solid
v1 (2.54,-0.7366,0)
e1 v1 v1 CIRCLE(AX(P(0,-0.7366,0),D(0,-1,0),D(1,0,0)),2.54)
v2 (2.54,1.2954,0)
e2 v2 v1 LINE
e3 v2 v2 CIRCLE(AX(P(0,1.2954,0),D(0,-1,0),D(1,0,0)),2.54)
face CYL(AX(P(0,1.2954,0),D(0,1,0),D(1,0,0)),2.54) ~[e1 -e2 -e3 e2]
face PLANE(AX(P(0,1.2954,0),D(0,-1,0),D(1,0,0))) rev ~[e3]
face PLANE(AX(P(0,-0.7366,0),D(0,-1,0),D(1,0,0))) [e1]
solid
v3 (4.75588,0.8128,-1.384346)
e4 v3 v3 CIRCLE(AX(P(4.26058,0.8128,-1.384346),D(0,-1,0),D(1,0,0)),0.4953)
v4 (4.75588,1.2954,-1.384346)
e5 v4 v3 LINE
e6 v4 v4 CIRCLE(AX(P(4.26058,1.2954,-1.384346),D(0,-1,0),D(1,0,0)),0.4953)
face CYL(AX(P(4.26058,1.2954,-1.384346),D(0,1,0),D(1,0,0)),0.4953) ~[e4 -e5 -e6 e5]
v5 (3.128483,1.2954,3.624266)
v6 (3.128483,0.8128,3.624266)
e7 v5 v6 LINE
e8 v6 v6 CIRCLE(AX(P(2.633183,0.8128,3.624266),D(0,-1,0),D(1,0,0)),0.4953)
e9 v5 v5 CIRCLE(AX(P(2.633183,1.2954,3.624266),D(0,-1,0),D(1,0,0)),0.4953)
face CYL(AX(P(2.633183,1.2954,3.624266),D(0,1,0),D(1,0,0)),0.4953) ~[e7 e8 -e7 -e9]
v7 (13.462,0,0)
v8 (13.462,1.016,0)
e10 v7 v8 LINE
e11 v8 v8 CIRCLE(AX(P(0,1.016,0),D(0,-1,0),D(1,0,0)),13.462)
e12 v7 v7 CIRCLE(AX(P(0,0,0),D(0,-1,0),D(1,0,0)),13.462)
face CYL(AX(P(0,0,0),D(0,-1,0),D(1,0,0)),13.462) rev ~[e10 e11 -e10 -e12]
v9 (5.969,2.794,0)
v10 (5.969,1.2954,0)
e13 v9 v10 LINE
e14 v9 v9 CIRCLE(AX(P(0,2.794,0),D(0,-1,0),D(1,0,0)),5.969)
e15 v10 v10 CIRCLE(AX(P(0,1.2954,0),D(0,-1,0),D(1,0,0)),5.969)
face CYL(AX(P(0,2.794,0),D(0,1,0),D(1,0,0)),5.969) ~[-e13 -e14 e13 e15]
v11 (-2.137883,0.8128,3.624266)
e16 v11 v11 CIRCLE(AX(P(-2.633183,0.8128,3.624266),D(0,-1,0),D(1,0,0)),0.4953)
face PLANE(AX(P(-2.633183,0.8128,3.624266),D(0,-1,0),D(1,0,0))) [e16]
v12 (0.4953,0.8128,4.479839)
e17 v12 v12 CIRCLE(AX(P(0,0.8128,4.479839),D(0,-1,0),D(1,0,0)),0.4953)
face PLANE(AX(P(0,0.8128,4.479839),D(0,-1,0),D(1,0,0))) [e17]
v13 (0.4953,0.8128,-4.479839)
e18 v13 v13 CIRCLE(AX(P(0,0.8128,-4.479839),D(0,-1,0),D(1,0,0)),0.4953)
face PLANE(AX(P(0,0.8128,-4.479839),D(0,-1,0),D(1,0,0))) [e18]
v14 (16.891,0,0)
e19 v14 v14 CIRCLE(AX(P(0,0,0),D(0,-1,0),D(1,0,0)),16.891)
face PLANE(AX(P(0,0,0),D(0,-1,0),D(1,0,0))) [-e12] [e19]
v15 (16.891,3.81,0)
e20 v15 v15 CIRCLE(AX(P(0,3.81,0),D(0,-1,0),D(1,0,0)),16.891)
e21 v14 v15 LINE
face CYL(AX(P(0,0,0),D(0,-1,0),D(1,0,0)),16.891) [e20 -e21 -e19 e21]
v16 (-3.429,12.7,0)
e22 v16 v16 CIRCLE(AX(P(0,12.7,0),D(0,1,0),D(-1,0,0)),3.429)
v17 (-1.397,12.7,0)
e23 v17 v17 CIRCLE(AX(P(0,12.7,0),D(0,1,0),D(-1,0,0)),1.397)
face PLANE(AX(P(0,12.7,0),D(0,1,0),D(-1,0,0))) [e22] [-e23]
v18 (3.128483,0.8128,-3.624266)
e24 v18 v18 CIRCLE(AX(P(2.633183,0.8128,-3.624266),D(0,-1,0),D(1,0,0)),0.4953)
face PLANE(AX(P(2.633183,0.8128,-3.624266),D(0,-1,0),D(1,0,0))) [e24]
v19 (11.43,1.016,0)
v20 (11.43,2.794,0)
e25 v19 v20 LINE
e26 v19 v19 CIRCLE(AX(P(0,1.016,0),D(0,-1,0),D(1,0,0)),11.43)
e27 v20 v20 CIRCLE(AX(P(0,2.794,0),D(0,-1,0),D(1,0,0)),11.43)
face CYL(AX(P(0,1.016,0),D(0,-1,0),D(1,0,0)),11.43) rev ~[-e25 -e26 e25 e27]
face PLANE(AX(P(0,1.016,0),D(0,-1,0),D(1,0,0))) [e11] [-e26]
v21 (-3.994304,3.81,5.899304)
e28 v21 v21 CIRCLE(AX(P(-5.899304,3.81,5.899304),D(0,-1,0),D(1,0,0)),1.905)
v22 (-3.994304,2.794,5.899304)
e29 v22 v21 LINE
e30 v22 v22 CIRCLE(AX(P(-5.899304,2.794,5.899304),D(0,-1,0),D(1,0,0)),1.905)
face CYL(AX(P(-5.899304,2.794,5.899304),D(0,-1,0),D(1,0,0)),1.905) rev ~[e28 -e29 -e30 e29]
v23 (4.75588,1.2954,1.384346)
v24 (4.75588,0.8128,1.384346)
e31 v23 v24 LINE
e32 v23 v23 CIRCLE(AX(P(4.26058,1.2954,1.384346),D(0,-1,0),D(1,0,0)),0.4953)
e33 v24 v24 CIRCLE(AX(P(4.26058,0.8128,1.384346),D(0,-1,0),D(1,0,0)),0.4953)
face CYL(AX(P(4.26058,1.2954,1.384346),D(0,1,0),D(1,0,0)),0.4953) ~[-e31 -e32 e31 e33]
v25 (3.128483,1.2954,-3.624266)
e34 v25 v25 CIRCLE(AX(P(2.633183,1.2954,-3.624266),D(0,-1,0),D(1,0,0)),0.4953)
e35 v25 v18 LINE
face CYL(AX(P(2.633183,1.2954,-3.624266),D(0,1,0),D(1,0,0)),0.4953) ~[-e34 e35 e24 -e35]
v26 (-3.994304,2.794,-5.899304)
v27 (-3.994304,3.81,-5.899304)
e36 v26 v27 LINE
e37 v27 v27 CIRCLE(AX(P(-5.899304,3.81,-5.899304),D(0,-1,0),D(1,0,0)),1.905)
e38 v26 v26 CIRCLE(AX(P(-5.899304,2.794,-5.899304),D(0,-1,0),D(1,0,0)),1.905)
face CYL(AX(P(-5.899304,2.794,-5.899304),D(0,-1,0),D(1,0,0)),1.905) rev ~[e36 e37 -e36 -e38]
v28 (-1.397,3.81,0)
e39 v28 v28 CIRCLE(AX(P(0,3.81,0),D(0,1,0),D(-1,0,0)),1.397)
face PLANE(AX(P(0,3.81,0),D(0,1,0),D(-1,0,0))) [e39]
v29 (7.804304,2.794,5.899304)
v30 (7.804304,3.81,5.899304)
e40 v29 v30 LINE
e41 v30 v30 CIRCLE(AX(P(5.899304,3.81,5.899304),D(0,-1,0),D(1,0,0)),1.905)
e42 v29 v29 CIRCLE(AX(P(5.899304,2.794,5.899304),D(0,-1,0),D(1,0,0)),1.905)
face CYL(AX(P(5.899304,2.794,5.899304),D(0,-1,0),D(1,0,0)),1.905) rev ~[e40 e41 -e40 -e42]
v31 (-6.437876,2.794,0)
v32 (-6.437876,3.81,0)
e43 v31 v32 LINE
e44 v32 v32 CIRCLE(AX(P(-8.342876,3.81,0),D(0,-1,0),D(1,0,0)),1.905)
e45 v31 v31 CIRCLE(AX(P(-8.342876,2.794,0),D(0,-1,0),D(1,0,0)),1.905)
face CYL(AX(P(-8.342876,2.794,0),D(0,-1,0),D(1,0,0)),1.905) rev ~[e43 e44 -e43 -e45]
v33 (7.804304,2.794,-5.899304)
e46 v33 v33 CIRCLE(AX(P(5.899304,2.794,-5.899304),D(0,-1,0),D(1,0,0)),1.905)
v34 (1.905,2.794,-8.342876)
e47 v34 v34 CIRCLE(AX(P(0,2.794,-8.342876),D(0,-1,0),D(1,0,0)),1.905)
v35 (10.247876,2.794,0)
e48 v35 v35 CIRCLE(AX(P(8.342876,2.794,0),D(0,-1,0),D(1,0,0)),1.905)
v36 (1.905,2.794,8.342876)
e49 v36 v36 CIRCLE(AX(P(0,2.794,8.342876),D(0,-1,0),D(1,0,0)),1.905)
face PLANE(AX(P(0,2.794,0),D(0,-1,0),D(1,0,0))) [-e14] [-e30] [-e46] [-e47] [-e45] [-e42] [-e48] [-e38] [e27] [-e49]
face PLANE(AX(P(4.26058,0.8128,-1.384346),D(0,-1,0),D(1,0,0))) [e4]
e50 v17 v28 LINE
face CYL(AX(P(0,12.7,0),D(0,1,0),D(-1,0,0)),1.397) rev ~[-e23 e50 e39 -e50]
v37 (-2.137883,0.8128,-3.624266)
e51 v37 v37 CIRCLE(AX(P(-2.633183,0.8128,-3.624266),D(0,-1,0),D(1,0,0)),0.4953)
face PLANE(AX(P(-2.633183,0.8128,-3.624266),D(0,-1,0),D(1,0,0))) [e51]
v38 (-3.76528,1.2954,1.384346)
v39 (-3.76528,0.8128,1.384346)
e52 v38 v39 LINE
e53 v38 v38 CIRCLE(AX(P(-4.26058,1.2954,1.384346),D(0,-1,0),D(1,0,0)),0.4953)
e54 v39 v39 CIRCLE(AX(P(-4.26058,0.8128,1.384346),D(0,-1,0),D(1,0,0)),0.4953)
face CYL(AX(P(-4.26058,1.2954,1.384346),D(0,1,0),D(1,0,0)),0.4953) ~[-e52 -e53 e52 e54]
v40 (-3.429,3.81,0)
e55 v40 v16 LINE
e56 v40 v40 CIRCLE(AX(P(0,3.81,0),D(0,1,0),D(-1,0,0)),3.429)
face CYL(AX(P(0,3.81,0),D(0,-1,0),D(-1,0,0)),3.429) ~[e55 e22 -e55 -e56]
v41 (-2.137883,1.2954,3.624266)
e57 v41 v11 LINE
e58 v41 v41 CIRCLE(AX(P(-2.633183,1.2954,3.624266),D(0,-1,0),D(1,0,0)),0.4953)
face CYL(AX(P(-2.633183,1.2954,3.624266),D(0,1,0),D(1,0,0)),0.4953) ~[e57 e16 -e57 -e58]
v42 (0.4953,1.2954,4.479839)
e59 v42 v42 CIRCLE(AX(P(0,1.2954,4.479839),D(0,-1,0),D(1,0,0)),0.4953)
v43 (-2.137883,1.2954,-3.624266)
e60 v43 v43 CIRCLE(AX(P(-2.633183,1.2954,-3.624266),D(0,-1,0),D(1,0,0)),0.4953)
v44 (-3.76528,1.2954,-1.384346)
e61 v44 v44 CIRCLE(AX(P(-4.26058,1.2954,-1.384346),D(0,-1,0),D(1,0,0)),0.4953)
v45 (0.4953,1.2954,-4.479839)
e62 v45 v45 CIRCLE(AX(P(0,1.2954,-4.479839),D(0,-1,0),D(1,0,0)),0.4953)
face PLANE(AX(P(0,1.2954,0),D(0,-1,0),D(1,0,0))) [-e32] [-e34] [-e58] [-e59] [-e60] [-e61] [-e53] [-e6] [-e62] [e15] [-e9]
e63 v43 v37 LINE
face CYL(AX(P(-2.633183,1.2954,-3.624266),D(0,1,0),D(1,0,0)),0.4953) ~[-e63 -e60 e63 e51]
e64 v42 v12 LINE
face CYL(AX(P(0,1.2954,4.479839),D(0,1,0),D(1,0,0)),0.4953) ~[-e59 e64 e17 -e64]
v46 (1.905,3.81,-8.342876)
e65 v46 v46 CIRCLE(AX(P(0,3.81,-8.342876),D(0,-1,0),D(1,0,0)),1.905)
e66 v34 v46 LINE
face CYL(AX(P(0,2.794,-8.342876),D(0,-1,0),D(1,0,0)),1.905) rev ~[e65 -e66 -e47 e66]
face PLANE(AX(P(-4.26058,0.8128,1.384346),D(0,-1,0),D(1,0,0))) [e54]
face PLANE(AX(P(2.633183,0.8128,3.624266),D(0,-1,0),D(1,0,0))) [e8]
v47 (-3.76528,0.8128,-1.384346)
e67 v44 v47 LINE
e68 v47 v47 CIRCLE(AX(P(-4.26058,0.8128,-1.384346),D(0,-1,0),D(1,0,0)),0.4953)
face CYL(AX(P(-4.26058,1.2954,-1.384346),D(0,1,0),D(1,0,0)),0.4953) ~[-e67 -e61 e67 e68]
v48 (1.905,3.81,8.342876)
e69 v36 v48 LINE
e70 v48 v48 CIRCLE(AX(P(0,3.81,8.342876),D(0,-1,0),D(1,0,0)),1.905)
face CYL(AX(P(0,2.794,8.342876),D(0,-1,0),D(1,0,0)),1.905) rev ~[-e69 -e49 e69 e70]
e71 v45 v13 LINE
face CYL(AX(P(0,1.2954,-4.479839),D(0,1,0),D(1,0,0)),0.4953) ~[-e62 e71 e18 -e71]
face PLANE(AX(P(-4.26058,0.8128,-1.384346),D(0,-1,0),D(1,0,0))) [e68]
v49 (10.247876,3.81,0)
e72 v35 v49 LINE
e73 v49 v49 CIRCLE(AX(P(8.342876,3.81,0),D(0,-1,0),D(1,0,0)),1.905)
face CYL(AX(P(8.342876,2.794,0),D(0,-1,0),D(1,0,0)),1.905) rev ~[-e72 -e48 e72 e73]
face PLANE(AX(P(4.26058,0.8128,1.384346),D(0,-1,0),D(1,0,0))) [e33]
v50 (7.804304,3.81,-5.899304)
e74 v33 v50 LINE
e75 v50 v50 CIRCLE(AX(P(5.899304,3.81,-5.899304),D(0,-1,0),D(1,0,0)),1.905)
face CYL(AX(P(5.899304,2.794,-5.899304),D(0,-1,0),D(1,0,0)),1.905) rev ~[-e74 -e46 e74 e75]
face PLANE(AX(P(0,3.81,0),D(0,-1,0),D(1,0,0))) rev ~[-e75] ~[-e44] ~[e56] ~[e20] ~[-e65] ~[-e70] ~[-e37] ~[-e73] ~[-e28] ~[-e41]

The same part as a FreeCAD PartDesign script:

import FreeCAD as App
import Part
import Sketcher

V = App.Vector
Q = App.Units.Quantity

doc = App.newDocument("Part")
params = doc.addObject("Spreadsheet::Sheet", "Params")
for row, (alias, value) in enumerate([
    ("sketch1_diameter", "1.33 in"),
    ("pad1_length", "0.15 in"),
    ("sketch2_diameter", "1.06 in"),
    ("pocket1_length", "0.04 in"),
    ("sketch3_diameter", "0.9 in"),
    ("pocket2_length", "0.07 in"),
    ("sketch4_diameter", "0.15 in"),
    ("pocket3_length", "0.078 in"),
    ("sketch5_diameter", "0.47 in"),
    ("pad2_length", "0.059 in"),
    ("sketch6_diameter", "0.039 in"),
    ("pad3_length", "0.019 in"),
    ("sketch7_diameter", "0.27 in"),
    ("pad4_length", "0.35 in"),
    ("sketch8_diameter", "0.11 in"),
    ("pocket4_length", "0.35 in"),
    ("sketch9_diameter", "0.2 in"),
    ("pad5_length", "0.08 in"),
], start=1):
    params.set(f"A{row}", alias)
    params.set(f"B{row}", "=" + value)
    params.setAlias(f"B{row}", alias)

body = doc.addObject("PartDesign::Body", "Body")

# Sketch on XZ plane
sketch1 = doc.addObject("Sketcher::SketchObject", "Sketch")
body.addObject(sketch1)
sketch1.AttachmentSupport = (doc.XZ_Plane, [""])
sketch1.MapMode = "FlatFace"
sketch1.addGeometry(Part.Circle(V(0, 0, 0), V(0, 0, 1), 17), False)
sketch1.addConstraint(Sketcher.Constraint("Coincident", 0, 3, -1, 1))
sketch1.addConstraint(Sketcher.Constraint("Diameter", 0, Q("1.33 in")))
sketch1.setExpression("Constraints[1]", "Params.sketch1_diameter")
pad1 = doc.addObject("PartDesign::Pad", "Pad")
body.addObject(pad1)
pad1.Profile = sketch1
pad1.setExpression("Length", "Params.pad1_length")
pad1.Reversed = True

# Sketch on XZ plane
sketch2 = doc.addObject("Sketcher::SketchObject", "Sketch001")
body.addObject(sketch2)
sketch2.AttachmentSupport = (doc.XZ_Plane, [""])
sketch2.MapMode = "FlatFace"
sketch2.addGeometry(Part.Circle(V(0, 0, 0), V(0, 0, 1), 13), False)
sketch2.addConstraint(Sketcher.Constraint("Coincident", 0, 3, -1, 1))
sketch2.addConstraint(Sketcher.Constraint("Diameter", 0, Q("1.06 in")))
sketch2.setExpression("Constraints[1]", "Params.sketch2_diameter")
pocket1 = doc.addObject("PartDesign::Pocket", "Pocket")
body.addObject(pocket1)
pocket1.Profile = sketch2
pocket1.setExpression("Length", "Params.pocket1_length")

# Sketch on XZ plane
sketch3 = doc.addObject("Sketcher::SketchObject", "Sketch002")
body.addObject(sketch3)
sketch3.AttachmentSupport = (doc.XZ_Plane, [""])
sketch3.MapMode = "FlatFace"
sketch3.AttachmentOffset = App.Placement(V(0, 0, -0.04 * 25.4), App.Rotation())
sketch3.addGeometry(Part.Circle(V(0, 0, 0), V(0, 0, 1), 11), False)
sketch3.addConstraint(Sketcher.Constraint("Coincident", 0, 3, -1, 1))
sketch3.addConstraint(Sketcher.Constraint("Diameter", 0, Q("0.9 in")))
sketch3.setExpression("Constraints[1]", "Params.sketch3_diameter")
pocket2 = doc.addObject("PartDesign::Pocket", "Pocket001")
body.addObject(pocket2)
pocket2.Profile = sketch3
pocket2.setExpression("Length", "Params.pocket2_length")

# Sketch on XZ plane
sketch4 = doc.addObject("Sketcher::SketchObject", "Sketch003")
body.addObject(sketch4)
sketch4.AttachmentSupport = (doc.XZ_Plane, [""])
sketch4.MapMode = "FlatFace"
sketch4.AttachmentOffset = App.Placement(V(0, 0, -0.11 * 25.4), App.Rotation())
sketch4.addGeometry(Part.Circle(V(-5.9, 5.9, 0), V(0, 0, 1), 1.9), False)
sketch4.addGeometry(Part.Circle(V(0, 8.3, 0), V(0, 0, 1), 1.9), False)
sketch4.addGeometry(Part.Circle(V(5.9, 5.9, 0), V(0, 0, 1), 1.9), False)
sketch4.addGeometry(Part.Circle(V(8.3, 0, 0), V(0, 0, 1), 1.9), False)
sketch4.addGeometry(Part.Circle(V(5.9, -5.9, 0), V(0, 0, 1), 1.9), False)
sketch4.addGeometry(Part.Circle(V(0, -8.3, 0), V(0, 0, 1), 1.9), False)
sketch4.addGeometry(Part.Circle(V(-5.9, -5.9, 0), V(0, 0, 1), 1.9), False)
sketch4.addGeometry(Part.Circle(V(-8.3, 0, 0), V(0, 0, 1), 1.9), False)
sketch4.addConstraint(Sketcher.Constraint("Equal", 0, 1))
sketch4.addConstraint(Sketcher.Constraint("Equal", 1, 2))
sketch4.addConstraint(Sketcher.Constraint("Equal", 2, 3))
sketch4.addConstraint(Sketcher.Constraint("Equal", 3, 4))
sketch4.addConstraint(Sketcher.Constraint("Equal", 4, 5))
sketch4.addConstraint(Sketcher.Constraint("Equal", 5, 6))
sketch4.addConstraint(Sketcher.Constraint("Equal", 6, 7))
sketch4.addConstraint(Sketcher.Constraint("Symmetric", 0, 3, 4, 3, -1, 1))
sketch4.addConstraint(Sketcher.Constraint("Symmetric", 1, 3, 5, 3, -1, 1))
sketch4.addConstraint(Sketcher.Constraint("Symmetric", 2, 3, 6, 3, -1, 1))
sketch4.addConstraint(Sketcher.Constraint("Symmetric", 3, 3, 7, 3, -1, 1))
sketch4.addConstraint(Sketcher.Constraint("Symmetric", 0, 3, 2, 3, -2))
sketch4.addConstraint(Sketcher.Constraint("PointOnObject", 1, 3, -2))
sketch4.addConstraint(Sketcher.Constraint("PointOnObject", 3, 3, -1))
sketch4.addConstraint(Sketcher.Constraint("Diameter", 0, Q("0.15 in")))
sketch4.addConstraint(Sketcher.Constraint("DistanceX", 0, 3, 3, 3, 14.24218))
sketch4.addConstraint(Sketcher.Constraint("DistanceY", 4, 3, 1, 3, 14.24218))
sketch4.addConstraint(Sketcher.Constraint("DistanceX", 0, 3, -1, 1, 5.899304))
sketch4.addConstraint(Sketcher.Constraint("DistanceY", -1, 1, 0, 3, 5.899304))
sketch4.setExpression("Constraints[14]", "Params.sketch4_diameter")
pocket3 = doc.addObject("PartDesign::Pocket", "Pocket002")
body.addObject(pocket3)
pocket3.Profile = sketch4
pocket3.setExpression("Length", "Params.pocket3_length")

# Sketch on XZ plane
sketch5 = doc.addObject("Sketcher::SketchObject", "Sketch004")
body.addObject(sketch5)
sketch5.AttachmentSupport = (doc.XZ_Plane, [""])
sketch5.MapMode = "FlatFace"
sketch5.AttachmentOffset = App.Placement(V(0, 0, -0.11 * 25.4), App.Rotation())
sketch5.addGeometry(Part.Circle(V(0, 0, 0), V(0, 0, 1), 6), False)
sketch5.addConstraint(Sketcher.Constraint("Coincident", 0, 3, -1, 1))
sketch5.addConstraint(Sketcher.Constraint("Diameter", 0, Q("0.47 in")))
sketch5.setExpression("Constraints[1]", "Params.sketch5_diameter")
pad2 = doc.addObject("PartDesign::Pad", "Pad001")
body.addObject(pad2)
pad2.Profile = sketch5
pad2.setExpression("Length", "Params.pad2_length")

# Sketch on XZ plane
sketch6 = doc.addObject("Sketcher::SketchObject", "Sketch005")
body.addObject(sketch6)
sketch6.AttachmentSupport = (doc.XZ_Plane, [""])
sketch6.MapMode = "FlatFace"
sketch6.AttachmentOffset = App.Placement(V(0, 0, -0.051 * 25.4), App.Rotation())
sketch6.addGeometry(Part.Circle(V(-2.63, 3.62, 0), V(0, 0, 1), 0.5), False)
sketch6.addGeometry(Part.Circle(V(0, 4.48, 0), V(0, 0, 1), 0.5), False)
sketch6.addGeometry(Part.Circle(V(2.63, 3.62, 0), V(0, 0, 1), 0.5), False)
sketch6.addGeometry(Part.Circle(V(4.26, 1.38, 0), V(0, 0, 1), 0.5), False)
sketch6.addGeometry(Part.Circle(V(4.26, -1.38, 0), V(0, 0, 1), 0.5), False)
sketch6.addGeometry(Part.Circle(V(2.63, -3.62, 0), V(0, 0, 1), 0.5), False)
sketch6.addGeometry(Part.Circle(V(0, -4.48, 0), V(0, 0, 1), 0.5), False)
sketch6.addGeometry(Part.Circle(V(-2.63, -3.62, 0), V(0, 0, 1), 0.5), False)
sketch6.addGeometry(Part.Circle(V(-4.26, -1.38, 0), V(0, 0, 1), 0.5), False)
sketch6.addGeometry(Part.Circle(V(-4.26, 1.38, 0), V(0, 0, 1), 0.5), False)
sketch6.addConstraint(Sketcher.Constraint("Equal", 0, 1))
sketch6.addConstraint(Sketcher.Constraint("Equal", 1, 2))
sketch6.addConstraint(Sketcher.Constraint("Equal", 2, 3))
sketch6.addConstraint(Sketcher.Constraint("Equal", 3, 4))
sketch6.addConstraint(Sketcher.Constraint("Equal", 4, 5))
sketch6.addConstraint(Sketcher.Constraint("Equal", 5, 6))
sketch6.addConstraint(Sketcher.Constraint("Equal", 6, 7))
sketch6.addConstraint(Sketcher.Constraint("Equal", 7, 8))
sketch6.addConstraint(Sketcher.Constraint("Equal", 8, 9))
sketch6.addConstraint(Sketcher.Constraint("Symmetric", 0, 3, 5, 3, -1, 1))
sketch6.addConstraint(Sketcher.Constraint("Symmetric", 1, 3, 6, 3, -1, 1))
sketch6.addConstraint(Sketcher.Constraint("Symmetric", 2, 3, 7, 3, -1, 1))
sketch6.addConstraint(Sketcher.Constraint("Symmetric", 3, 3, 8, 3, -1, 1))
sketch6.addConstraint(Sketcher.Constraint("Symmetric", 4, 3, 9, 3, -1, 1))
sketch6.addConstraint(Sketcher.Constraint("Symmetric", 0, 3, 2, 3, -2))
sketch6.addConstraint(Sketcher.Constraint("Symmetric", 4, 3, 8, 3, -2))
sketch6.addConstraint(Sketcher.Constraint("PointOnObject", 1, 3, -2))
sketch6.addConstraint(Sketcher.Constraint("Diameter", 0, Q("0.039 in")))
sketch6.addConstraint(Sketcher.Constraint("DistanceY", -1, 1, 1, 3, 4.479839))
sketch6.addConstraint(Sketcher.Constraint("DistanceX", -1, 1, 3, 3, 4.26058))
sketch6.addConstraint(Sketcher.Constraint("DistanceY", 3, 3, 2, 3, 2.23992))
sketch6.addConstraint(Sketcher.Constraint("DistanceX", 0, 3, -1, 1, 2.633183))
sketch6.addConstraint(Sketcher.Constraint("DistanceY", -1, 1, 0, 3, 3.624266))
sketch6.setExpression("Constraints[17]", "Params.sketch6_diameter")
pad3 = doc.addObject("PartDesign::Pad", "Pad002")
body.addObject(pad3)
pad3.Profile = sketch6
pad3.setExpression("Length", "Params.pad3_length")

# Sketch on XZ plane
sketch7 = doc.addObject("Sketcher::SketchObject", "Sketch006")
body.addObject(sketch7)
sketch7.AttachmentSupport = (doc.XZ_Plane, [""])
sketch7.MapMode = "FlatFace"
sketch7.AttachmentOffset = App.Placement(V(0, 0, -0.15 * 25.4), App.Rotation())
sketch7.addGeometry(Part.Circle(V(0, 0, 0), V(0, 0, 1), 3.4), False)
sketch7.addConstraint(Sketcher.Constraint("Coincident", 0, 3, -1, 1))
sketch7.addConstraint(Sketcher.Constraint("Diameter", 0, Q("0.27 in")))
sketch7.setExpression("Constraints[1]", "Params.sketch7_diameter")
pad4 = doc.addObject("PartDesign::Pad", "Pad003")
body.addObject(pad4)
pad4.Profile = sketch7
pad4.setExpression("Length", "Params.pad4_length")
pad4.Reversed = True

# Sketch on XZ plane
sketch8 = doc.addObject("Sketcher::SketchObject", "Sketch007")
body.addObject(sketch8)
sketch8.AttachmentSupport = (doc.XZ_Plane, [""])
sketch8.MapMode = "FlatFace"
sketch8.AttachmentOffset = App.Placement(V(0, 0, -0.5 * 25.4), App.Rotation())
sketch8.addGeometry(Part.Circle(V(0, 0, 0), V(0, 0, 1), 1.4), False)
sketch8.addConstraint(Sketcher.Constraint("Coincident", 0, 3, -1, 1))
sketch8.addConstraint(Sketcher.Constraint("Diameter", 0, Q("0.11 in")))
sketch8.setExpression("Constraints[1]", "Params.sketch8_diameter")
pocket4 = doc.addObject("PartDesign::Pocket", "Pocket003")
body.addObject(pocket4)
pocket4.Profile = sketch8
pocket4.setExpression("Length", "Params.pocket4_length")
pocket4.Reversed = True
body2 = doc.addObject("PartDesign::Body", "Body001")

# Sketch on XZ plane
sketch9 = doc.addObject("Sketcher::SketchObject", "Sketch008")
body2.addObject(sketch9)
sketch9.AttachmentSupport = (doc.getObject("XZ_Plane001"), [""])
sketch9.MapMode = "FlatFace"
sketch9.AttachmentOffset = App.Placement(V(0, 0, -0.051 * 25.4), App.Rotation())
sketch9.addGeometry(Part.Circle(V(0, 0, 0), V(0, 0, 1), 2.5), False)
sketch9.addConstraint(Sketcher.Constraint("Coincident", 0, 3, -1, 1))
sketch9.addConstraint(Sketcher.Constraint("Diameter", 0, Q("0.2 in")))
sketch9.setExpression("Constraints[1]", "Params.sketch9_diameter")
pad5 = doc.addObject("PartDesign::Pad", "Pad004")
body2.addObject(pad5)
pad5.Profile = sketch9
pad5.setExpression("Length", "Params.pad5_length")

doc.recompute()
